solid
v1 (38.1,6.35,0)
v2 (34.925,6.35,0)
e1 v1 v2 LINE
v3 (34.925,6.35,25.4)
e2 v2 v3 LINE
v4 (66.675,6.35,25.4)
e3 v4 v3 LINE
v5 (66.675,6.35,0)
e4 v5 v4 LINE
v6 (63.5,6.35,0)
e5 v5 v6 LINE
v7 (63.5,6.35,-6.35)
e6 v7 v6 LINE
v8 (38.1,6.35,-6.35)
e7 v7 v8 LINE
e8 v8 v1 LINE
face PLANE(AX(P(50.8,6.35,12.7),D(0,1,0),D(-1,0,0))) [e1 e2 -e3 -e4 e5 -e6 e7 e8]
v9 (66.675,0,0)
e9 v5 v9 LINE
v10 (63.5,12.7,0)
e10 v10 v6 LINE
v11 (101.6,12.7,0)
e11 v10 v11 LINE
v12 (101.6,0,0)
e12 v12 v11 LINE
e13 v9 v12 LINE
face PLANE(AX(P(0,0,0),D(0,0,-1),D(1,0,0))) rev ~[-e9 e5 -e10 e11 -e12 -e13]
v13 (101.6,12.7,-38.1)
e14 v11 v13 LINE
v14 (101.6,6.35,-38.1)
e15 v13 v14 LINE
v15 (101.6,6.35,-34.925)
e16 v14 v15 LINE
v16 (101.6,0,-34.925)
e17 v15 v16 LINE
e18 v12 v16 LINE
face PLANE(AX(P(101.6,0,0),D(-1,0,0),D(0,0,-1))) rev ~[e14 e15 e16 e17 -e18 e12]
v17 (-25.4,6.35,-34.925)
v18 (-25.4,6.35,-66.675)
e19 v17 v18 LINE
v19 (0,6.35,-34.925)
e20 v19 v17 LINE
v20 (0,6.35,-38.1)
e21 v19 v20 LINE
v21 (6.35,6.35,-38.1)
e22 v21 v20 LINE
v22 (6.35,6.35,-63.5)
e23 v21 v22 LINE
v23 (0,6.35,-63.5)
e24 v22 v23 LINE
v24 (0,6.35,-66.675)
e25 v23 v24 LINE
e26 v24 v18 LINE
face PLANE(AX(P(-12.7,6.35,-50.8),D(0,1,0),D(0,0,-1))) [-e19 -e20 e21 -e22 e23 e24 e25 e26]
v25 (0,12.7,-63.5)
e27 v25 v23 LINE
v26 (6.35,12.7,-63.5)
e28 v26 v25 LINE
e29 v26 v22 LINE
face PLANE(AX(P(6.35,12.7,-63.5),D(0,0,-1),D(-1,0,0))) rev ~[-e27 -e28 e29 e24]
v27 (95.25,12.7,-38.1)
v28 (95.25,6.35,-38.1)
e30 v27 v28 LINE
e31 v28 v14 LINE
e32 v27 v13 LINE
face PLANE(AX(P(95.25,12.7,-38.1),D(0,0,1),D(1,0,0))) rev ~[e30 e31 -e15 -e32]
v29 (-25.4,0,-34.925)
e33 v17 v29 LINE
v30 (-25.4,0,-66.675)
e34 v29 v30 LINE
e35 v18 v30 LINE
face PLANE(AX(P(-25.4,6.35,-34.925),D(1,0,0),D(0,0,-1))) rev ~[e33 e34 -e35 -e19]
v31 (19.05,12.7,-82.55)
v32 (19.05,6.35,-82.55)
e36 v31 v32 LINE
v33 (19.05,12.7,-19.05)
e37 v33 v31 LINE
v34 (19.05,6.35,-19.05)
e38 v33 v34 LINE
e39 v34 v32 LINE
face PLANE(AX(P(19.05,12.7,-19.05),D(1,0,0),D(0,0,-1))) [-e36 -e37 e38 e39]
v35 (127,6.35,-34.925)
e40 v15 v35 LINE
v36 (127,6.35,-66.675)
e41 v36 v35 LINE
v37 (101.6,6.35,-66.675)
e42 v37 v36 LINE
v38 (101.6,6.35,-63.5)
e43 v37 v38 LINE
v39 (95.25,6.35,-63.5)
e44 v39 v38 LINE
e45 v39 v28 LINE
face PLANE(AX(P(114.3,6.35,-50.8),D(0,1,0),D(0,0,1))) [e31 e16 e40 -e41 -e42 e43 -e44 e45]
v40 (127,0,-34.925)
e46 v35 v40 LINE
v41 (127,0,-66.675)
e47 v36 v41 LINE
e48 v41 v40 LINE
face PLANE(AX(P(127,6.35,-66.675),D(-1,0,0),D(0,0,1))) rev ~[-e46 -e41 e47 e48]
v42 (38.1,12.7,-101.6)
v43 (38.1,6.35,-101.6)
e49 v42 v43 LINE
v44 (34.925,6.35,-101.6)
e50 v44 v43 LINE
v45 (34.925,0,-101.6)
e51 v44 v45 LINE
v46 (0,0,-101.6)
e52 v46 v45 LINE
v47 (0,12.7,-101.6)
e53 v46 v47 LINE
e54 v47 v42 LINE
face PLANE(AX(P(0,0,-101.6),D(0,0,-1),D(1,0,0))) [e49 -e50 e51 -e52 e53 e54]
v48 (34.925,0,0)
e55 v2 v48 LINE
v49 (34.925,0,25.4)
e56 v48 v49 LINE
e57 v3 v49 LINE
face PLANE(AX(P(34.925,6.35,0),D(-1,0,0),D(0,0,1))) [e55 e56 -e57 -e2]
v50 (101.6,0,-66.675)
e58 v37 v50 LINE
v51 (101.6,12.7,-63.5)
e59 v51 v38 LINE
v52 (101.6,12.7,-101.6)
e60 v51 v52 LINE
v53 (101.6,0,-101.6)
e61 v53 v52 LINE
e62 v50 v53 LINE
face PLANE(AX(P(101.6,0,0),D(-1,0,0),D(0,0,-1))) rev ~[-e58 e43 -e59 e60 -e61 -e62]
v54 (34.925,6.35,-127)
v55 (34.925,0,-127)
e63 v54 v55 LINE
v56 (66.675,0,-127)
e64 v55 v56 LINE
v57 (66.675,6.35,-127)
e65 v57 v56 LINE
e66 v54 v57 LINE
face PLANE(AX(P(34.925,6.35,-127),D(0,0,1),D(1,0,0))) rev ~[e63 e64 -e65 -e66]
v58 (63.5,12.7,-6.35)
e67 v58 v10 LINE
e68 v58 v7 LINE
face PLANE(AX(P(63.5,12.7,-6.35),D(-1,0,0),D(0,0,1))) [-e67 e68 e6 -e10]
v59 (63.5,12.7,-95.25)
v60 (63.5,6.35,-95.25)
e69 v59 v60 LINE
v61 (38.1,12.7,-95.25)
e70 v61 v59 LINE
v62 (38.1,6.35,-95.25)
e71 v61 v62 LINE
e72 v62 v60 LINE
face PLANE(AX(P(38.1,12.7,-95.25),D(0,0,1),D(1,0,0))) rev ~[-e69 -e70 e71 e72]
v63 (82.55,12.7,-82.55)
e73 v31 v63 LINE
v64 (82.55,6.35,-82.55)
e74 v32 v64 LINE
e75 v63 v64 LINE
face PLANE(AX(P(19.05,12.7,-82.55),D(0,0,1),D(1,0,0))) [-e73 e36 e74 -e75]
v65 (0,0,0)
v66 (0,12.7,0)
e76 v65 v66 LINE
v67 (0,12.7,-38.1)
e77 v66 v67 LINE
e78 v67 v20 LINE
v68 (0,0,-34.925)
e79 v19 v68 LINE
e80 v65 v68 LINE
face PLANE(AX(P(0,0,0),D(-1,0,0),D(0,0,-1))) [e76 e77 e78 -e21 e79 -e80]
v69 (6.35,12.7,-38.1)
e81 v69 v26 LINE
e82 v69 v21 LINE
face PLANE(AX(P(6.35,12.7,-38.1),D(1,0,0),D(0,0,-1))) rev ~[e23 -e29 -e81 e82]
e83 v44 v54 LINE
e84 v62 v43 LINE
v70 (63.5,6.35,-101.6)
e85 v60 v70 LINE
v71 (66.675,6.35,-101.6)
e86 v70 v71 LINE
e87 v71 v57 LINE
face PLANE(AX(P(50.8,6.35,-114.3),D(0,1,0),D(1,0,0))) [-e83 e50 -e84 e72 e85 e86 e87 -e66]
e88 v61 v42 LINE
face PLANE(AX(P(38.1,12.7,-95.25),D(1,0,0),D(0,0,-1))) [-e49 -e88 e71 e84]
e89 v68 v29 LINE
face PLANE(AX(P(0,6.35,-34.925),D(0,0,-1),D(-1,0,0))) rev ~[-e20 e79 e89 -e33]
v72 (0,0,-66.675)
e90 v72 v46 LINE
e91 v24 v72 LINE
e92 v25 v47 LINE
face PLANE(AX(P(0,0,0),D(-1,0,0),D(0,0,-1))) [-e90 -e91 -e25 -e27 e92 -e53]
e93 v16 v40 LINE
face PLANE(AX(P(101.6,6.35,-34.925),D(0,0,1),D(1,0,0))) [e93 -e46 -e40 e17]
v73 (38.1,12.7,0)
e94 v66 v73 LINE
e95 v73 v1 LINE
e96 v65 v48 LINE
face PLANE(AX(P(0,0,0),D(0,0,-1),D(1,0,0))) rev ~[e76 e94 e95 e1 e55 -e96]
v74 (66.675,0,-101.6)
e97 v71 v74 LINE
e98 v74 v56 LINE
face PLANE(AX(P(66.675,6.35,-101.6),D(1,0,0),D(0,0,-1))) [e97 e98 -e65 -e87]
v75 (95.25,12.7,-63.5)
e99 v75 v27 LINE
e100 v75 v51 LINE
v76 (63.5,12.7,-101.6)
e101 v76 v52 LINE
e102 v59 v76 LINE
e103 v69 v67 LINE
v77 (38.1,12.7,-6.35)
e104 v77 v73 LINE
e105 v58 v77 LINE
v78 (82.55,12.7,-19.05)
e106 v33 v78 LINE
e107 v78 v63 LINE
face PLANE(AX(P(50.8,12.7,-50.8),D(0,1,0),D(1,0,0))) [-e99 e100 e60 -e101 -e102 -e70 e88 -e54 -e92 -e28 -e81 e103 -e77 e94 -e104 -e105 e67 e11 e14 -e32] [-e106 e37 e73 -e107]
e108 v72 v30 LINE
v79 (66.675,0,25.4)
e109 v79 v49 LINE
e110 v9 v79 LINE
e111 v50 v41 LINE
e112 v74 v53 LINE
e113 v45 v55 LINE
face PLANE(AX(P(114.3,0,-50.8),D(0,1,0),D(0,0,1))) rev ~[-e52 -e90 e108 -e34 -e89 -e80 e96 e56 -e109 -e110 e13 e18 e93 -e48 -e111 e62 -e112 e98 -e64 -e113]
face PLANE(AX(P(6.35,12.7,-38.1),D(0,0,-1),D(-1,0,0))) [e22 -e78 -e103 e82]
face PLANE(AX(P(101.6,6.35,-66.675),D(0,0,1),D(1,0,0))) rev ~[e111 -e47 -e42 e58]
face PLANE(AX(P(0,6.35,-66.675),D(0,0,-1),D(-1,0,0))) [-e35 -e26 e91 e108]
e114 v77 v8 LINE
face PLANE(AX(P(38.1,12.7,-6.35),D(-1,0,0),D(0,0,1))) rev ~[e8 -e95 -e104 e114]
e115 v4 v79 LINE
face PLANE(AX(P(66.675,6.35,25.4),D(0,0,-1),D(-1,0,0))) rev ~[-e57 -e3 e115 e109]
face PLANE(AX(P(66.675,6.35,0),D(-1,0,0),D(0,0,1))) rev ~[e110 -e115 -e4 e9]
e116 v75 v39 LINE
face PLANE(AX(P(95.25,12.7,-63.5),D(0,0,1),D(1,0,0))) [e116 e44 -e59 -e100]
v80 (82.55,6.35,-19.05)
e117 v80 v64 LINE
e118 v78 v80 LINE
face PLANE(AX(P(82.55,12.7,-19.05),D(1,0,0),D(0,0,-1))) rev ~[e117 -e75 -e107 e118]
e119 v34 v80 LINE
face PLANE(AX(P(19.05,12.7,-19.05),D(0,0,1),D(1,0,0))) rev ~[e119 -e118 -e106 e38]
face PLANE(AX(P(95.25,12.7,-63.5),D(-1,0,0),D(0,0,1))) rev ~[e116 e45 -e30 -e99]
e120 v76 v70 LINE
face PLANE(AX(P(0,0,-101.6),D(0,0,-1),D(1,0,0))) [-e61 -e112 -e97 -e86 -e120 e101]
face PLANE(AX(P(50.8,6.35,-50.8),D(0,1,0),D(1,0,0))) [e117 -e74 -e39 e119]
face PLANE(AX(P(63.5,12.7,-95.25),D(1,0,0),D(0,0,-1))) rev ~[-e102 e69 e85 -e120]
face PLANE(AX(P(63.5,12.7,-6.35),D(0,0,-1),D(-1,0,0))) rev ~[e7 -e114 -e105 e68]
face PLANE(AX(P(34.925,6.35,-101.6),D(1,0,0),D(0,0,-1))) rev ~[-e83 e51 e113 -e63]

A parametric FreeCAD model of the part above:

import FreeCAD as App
import Part
import Sketcher
from FreeCAD import Vector
Q = App.Units.Quantity

doc = App.newDocument("Part")
body = doc.addObject("PartDesign::Body", "Body")

sketch1 = body.newObject("Sketcher::SketchObject", "Sketch")
sketch1.AttachmentSupport = (doc.getObject("XZ_Plane"), [""])
sketch1.MapMode = "FlatFace"
sketch1.addGeometry([
    Part.LineSegment(Vector(0, -102, 0), Vector(0, 0, 0)),
    Part.LineSegment(Vector(0, 0, 0), Vector(102, 0, 0)),
    Part.LineSegment(Vector(102, 0, 0), Vector(102, -102, 0)),
    Part.LineSegment(Vector(102, -102, 0), Vector(0, -102, 0)),
], False)
sketch1.addConstraint([
    Sketcher.Constraint("Coincident", 0, 2, 1, 1),
    Sketcher.Constraint("Coincident", 1, 2, 2, 1),
    Sketcher.Constraint("Coincident", 2, 2, 3, 1),
    Sketcher.Constraint("Coincident", 3, 2, 0, 1),
    Sketcher.Constraint("Vertical", 0),
    Sketcher.Constraint("Horizontal", 1),
    Sketcher.Constraint("Vertical", 2),
    Sketcher.Constraint("Horizontal", 3),
    Sketcher.Constraint("Coincident", 0, 2, -1, 1),
    Sketcher.Constraint("Equal", 3, 0),
    Sketcher.Constraint("DistanceX", 1, 1, 1, 2, Q("4 in")),
])
pad1 = body.newObject("PartDesign::Pad", "Pad")
pad1.Profile = sketch1
pad1.Length = Q("0.5 in")
pad1.Reversed = True

sketch2 = body.newObject("Sketcher::SketchObject", "Sketch001")
sketch2.AttachmentSupport = (doc.getObject("XZ_Plane"), [""])
sketch2.MapMode = "FlatFace"
sketch2.AttachmentOffset = App.Placement(Vector(0, 0, -0.5 * 25.4), App.Rotation())
sketch2.addGeometry([
    Part.LineSegment(Vector(19, -83, 0), Vector(19, -19, 0)),
    Part.LineSegment(Vector(19, -19, 0), Vector(83, -19, 0)),
    Part.LineSegment(Vector(83, -19, 0), Vector(83, -83, 0)),
    Part.LineSegment(Vector(83, -83, 0), Vector(19, -83, 0)),
], False)
sketch2.addConstraint([
    Sketcher.Constraint("Coincident", 0, 2, 1, 1),
    Sketcher.Constraint("Coincident", 1, 2, 2, 1),
    Sketcher.Constraint("Coincident", 2, 2, 3, 1),
    Sketcher.Constraint("Coincident", 3, 2, 0, 1),
    Sketcher.Constraint("Vertical", 0),
    Sketcher.Constraint("Horizontal", 1),
    Sketcher.Constraint("Vertical", 2),
    Sketcher.Constraint("Horizontal", 3),
    Sketcher.Constraint("Equal", 3, 0),
    Sketcher.Constraint("DistanceX", 1, 1, 1, 2, Q("2.5 in")),
    Sketcher.Constraint("DistanceX", -1, 1, 0, 2, Q("0.75 in")),
    Sketcher.Constraint("DistanceY", 0, 2, -1, 1, Q("0.75 in")),
])
pocket1 = body.newObject("PartDesign::Pocket", "Pocket")
pocket1.Profile = sketch2
pocket1.Length = Q("0.25 in")
pocket1.Reversed = True

sketch3 = body.newObject("Sketcher::SketchObject", "Sketch002")
sketch3.AttachmentSupport = (doc.getObject("XZ_Plane"), [""])
sketch3.MapMode = "FlatFace"
sketch3.AttachmentOffset = App.Placement(Vector(0, 0, -0.5 * 25.4), App.Rotation())
sketch3.addGeometry([
    Part.LineSegment(Vector(38, -102, 0), Vector(38, -95, 0)),
    Part.LineSegment(Vector(38, -95, 0), Vector(64, -95, 0)),
    Part.LineSegment(Vector(64, -95, 0), Vector(64, -102, 0)),
    Part.LineSegment(Vector(64, -102, 0), Vector(38, -102, 0)),
], False)
sketch3.addConstraint([
    Sketcher.Constraint("Coincident", 0, 2, 1, 1),
    Sketcher.Constraint("Coincident", 1, 2, 2, 1),
    Sketcher.Constraint("Coincident", 2, 2, 3, 1),
    Sketcher.Constraint("Coincident", 3, 2, 0, 1),
    Sketcher.Constraint("Vertical", 0),
    Sketcher.Constraint("Horizontal", 1),
    Sketcher.Constraint("Vertical", 2),
    Sketcher.Constraint("Horizontal", 3),
    Sketcher.Constraint("DistanceX", 1, 1, 1, 2, Q("1 in")),
    Sketcher.Constraint("DistanceY", 2, 2, -1, 1, Q("4 in")),
    Sketcher.Constraint("DistanceY", 0, 1, 0, 2, Q("0.25 in")),
    Sketcher.Constraint("DistanceX", -1, 1, 0, 2, Q("1.5 in")),
])
pocket2 = body.newObject("PartDesign::Pocket", "Pocket001")
pocket2.Profile = sketch3
pocket2.Length = Q("0.25 in")
pocket2.Reversed = True
doc.recompute()

datumline = body.newObject("PartDesign::Line", "DatumLine")
datumline.Placement = App.Placement(Vector(50.8, 0, -50.8), App.Rotation(Vector(0, 0, 1), Vector(0, 1, 0)))
polarpattern = body.newObject("PartDesign::PolarPattern", "PolarPattern")
polarpattern.Originals = [pocket2]
polarpattern.Axis = (datumline, [""])
polarpattern.Angle = 360
polarpattern.Occurrences = 4
body.Tip = polarpattern

sketch4 = body.newObject("Sketcher::SketchObject", "Sketch003")
sketch4.AttachmentSupport = (doc.getObject("XZ_Plane"), [""])
sketch4.MapMode = "FlatFace"
sketch4.AttachmentOffset = App.Placement(Vector(0, 0, -0.25 * 25.4), App.Rotation())
sketch4.addGeometry([
    Part.LineSegment(Vector(35, -127, 0), Vector(35, -102, 0)),
    Part.LineSegment(Vector(35, -102, 0), Vector(67, -102, 0)),
    Part.LineSegment(Vector(67, -102, 0), Vector(67, -127, 0)),
    Part.LineSegment(Vector(67, -127, 0), Vector(35, -127, 0)),
], False)
sketch4.addConstraint([
    Sketcher.Constraint("Coincident", 0, 2, 1, 1),
    Sketcher.Constraint("Coincident", 1, 2, 2, 1),
    Sketcher.Constraint("Coincident", 2, 2, 3, 1),
    Sketcher.Constraint("Coincident", 3, 2, 0, 1),
    Sketcher.Constraint("Vertical", 0),
    Sketcher.Constraint("Horizontal", 1),
    Sketcher.Constraint("Vertical", 2),
    Sketcher.Constraint("Horizontal", 3),
    Sketcher.Constraint("DistanceY", 0, 1, 0, 2, Q("1 in")),
    Sketcher.Constraint("DistanceY", 0, 2, -1, 1, Q("4 in")),
    Sketcher.Constraint("DistanceX", 1, 1, 1, 2, Q("1.25 in")),
    Sketcher.Constraint("DistanceX", -1, 1, 0, 2, Q("1.375 in")),
])
pad2 = body.newObject("PartDesign::Pad", "Pad001")
pad2.Profile = sketch4
pad2.Length = Q("0.25 in")
doc.recompute()

datumline2 = body.newObject("PartDesign::Line", "DatumLine001")
datumline2.Placement = App.Placement(Vector(50.8, 0, -50.8), App.Rotation(Vector(0, 0, 1), Vector(0, 1, 0)))
polarpattern2 = body.newObject("PartDesign::PolarPattern", "PolarPattern001")
polarpattern2.Originals = [pad2]
polarpattern2.Axis = (datumline2, [""])
polarpattern2.Angle = 360
polarpattern2.Occurrences = 4
body.Tip = polarpattern2

doc.recompute()
